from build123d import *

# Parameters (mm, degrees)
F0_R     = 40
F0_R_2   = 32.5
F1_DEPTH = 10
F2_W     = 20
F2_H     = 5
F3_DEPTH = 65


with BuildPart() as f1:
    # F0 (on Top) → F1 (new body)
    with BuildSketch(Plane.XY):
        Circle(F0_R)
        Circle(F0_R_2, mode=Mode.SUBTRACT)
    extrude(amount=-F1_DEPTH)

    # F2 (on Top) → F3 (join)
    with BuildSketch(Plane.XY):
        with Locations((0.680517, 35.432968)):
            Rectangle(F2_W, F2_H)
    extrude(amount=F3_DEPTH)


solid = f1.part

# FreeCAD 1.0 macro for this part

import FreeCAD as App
import Part
import Sketcher

V = App.Vector


def add_polygon(sketch, points):
    """Adds a closed chain of lines whose ends are joined by coincident constraints."""
    first, n = sketch.GeometryCount, len(points)
    for a, b in zip(points, points[1:] + points[:1]):
        sketch.addGeometry(Part.LineSegment(App.Vector(*a, 0), App.Vector(*b, 0)), False)
    for i in range(n):
        sketch.addConstraint(Sketcher.Constraint("Coincident", first + i, 2, first + (i + 1) % n, 1))

doc = App.newDocument("Part")
body = doc.addObject("PartDesign::Body", "Body")

sketch1 = body.newObject("Sketcher::SketchObject", "Sketch")
sketch1.AttachmentSupport = (doc.getObject("XY_Plane"), [""])
sketch1.MapMode = "FlatFace"
sketch1.addGeometry([
    Part.Circle(V(0, 0, 0), V(0, 0, 1), 40),
    Part.Circle(V(0, 0, 0), V(0, 0, 1), 32),
], False)
sketch1.addConstraint([
    Sketcher.Constraint("Coincident", 0, 3, -1, 1),
    Sketcher.Constraint("Coincident", 1, 3, -1, 1),
    Sketcher.Constraint("Diameter", 0, 80.0),
    Sketcher.Constraint("Diameter", 1, 65.0),
])
pad1 = body.newObject("PartDesign::Pad", "Pad")
pad1.Profile = sketch1
pad1.Length = 10
pad1.Reversed = True

sketch2 = body.newObject("Sketcher::SketchObject", "Sketch001")
sketch2.AttachmentSupport = (doc.getObject("XY_Plane"), [""])
sketch2.MapMode = "FlatFace"
add_polygon(sketch2, [(-9, 38), (-9, 33), (11, 33), (11, 38)])
sketch2.addConstraint([
    Sketcher.Constraint("Vertical", 0),
    Sketcher.Constraint("Horizontal", 1),
    Sketcher.Constraint("Vertical", 2),
    Sketcher.Constraint("Horizontal", 3),
    Sketcher.Constraint("DistanceX", 1, 1, 1, 2, 20.0),
    Sketcher.Constraint("DistanceY", 0, 2, 0, 1, 5.0),
    Sketcher.Constraint("DistanceY", -1, 1, 0, 2, 32.932968),
    Sketcher.Constraint("DistanceX", 0, 2, -1, 1, 9.319483),
])
pad2 = body.newObject("PartDesign::Pad", "Pad001")
pad2.Profile = sketch2
pad2.Length = 65

doc.recompute()
